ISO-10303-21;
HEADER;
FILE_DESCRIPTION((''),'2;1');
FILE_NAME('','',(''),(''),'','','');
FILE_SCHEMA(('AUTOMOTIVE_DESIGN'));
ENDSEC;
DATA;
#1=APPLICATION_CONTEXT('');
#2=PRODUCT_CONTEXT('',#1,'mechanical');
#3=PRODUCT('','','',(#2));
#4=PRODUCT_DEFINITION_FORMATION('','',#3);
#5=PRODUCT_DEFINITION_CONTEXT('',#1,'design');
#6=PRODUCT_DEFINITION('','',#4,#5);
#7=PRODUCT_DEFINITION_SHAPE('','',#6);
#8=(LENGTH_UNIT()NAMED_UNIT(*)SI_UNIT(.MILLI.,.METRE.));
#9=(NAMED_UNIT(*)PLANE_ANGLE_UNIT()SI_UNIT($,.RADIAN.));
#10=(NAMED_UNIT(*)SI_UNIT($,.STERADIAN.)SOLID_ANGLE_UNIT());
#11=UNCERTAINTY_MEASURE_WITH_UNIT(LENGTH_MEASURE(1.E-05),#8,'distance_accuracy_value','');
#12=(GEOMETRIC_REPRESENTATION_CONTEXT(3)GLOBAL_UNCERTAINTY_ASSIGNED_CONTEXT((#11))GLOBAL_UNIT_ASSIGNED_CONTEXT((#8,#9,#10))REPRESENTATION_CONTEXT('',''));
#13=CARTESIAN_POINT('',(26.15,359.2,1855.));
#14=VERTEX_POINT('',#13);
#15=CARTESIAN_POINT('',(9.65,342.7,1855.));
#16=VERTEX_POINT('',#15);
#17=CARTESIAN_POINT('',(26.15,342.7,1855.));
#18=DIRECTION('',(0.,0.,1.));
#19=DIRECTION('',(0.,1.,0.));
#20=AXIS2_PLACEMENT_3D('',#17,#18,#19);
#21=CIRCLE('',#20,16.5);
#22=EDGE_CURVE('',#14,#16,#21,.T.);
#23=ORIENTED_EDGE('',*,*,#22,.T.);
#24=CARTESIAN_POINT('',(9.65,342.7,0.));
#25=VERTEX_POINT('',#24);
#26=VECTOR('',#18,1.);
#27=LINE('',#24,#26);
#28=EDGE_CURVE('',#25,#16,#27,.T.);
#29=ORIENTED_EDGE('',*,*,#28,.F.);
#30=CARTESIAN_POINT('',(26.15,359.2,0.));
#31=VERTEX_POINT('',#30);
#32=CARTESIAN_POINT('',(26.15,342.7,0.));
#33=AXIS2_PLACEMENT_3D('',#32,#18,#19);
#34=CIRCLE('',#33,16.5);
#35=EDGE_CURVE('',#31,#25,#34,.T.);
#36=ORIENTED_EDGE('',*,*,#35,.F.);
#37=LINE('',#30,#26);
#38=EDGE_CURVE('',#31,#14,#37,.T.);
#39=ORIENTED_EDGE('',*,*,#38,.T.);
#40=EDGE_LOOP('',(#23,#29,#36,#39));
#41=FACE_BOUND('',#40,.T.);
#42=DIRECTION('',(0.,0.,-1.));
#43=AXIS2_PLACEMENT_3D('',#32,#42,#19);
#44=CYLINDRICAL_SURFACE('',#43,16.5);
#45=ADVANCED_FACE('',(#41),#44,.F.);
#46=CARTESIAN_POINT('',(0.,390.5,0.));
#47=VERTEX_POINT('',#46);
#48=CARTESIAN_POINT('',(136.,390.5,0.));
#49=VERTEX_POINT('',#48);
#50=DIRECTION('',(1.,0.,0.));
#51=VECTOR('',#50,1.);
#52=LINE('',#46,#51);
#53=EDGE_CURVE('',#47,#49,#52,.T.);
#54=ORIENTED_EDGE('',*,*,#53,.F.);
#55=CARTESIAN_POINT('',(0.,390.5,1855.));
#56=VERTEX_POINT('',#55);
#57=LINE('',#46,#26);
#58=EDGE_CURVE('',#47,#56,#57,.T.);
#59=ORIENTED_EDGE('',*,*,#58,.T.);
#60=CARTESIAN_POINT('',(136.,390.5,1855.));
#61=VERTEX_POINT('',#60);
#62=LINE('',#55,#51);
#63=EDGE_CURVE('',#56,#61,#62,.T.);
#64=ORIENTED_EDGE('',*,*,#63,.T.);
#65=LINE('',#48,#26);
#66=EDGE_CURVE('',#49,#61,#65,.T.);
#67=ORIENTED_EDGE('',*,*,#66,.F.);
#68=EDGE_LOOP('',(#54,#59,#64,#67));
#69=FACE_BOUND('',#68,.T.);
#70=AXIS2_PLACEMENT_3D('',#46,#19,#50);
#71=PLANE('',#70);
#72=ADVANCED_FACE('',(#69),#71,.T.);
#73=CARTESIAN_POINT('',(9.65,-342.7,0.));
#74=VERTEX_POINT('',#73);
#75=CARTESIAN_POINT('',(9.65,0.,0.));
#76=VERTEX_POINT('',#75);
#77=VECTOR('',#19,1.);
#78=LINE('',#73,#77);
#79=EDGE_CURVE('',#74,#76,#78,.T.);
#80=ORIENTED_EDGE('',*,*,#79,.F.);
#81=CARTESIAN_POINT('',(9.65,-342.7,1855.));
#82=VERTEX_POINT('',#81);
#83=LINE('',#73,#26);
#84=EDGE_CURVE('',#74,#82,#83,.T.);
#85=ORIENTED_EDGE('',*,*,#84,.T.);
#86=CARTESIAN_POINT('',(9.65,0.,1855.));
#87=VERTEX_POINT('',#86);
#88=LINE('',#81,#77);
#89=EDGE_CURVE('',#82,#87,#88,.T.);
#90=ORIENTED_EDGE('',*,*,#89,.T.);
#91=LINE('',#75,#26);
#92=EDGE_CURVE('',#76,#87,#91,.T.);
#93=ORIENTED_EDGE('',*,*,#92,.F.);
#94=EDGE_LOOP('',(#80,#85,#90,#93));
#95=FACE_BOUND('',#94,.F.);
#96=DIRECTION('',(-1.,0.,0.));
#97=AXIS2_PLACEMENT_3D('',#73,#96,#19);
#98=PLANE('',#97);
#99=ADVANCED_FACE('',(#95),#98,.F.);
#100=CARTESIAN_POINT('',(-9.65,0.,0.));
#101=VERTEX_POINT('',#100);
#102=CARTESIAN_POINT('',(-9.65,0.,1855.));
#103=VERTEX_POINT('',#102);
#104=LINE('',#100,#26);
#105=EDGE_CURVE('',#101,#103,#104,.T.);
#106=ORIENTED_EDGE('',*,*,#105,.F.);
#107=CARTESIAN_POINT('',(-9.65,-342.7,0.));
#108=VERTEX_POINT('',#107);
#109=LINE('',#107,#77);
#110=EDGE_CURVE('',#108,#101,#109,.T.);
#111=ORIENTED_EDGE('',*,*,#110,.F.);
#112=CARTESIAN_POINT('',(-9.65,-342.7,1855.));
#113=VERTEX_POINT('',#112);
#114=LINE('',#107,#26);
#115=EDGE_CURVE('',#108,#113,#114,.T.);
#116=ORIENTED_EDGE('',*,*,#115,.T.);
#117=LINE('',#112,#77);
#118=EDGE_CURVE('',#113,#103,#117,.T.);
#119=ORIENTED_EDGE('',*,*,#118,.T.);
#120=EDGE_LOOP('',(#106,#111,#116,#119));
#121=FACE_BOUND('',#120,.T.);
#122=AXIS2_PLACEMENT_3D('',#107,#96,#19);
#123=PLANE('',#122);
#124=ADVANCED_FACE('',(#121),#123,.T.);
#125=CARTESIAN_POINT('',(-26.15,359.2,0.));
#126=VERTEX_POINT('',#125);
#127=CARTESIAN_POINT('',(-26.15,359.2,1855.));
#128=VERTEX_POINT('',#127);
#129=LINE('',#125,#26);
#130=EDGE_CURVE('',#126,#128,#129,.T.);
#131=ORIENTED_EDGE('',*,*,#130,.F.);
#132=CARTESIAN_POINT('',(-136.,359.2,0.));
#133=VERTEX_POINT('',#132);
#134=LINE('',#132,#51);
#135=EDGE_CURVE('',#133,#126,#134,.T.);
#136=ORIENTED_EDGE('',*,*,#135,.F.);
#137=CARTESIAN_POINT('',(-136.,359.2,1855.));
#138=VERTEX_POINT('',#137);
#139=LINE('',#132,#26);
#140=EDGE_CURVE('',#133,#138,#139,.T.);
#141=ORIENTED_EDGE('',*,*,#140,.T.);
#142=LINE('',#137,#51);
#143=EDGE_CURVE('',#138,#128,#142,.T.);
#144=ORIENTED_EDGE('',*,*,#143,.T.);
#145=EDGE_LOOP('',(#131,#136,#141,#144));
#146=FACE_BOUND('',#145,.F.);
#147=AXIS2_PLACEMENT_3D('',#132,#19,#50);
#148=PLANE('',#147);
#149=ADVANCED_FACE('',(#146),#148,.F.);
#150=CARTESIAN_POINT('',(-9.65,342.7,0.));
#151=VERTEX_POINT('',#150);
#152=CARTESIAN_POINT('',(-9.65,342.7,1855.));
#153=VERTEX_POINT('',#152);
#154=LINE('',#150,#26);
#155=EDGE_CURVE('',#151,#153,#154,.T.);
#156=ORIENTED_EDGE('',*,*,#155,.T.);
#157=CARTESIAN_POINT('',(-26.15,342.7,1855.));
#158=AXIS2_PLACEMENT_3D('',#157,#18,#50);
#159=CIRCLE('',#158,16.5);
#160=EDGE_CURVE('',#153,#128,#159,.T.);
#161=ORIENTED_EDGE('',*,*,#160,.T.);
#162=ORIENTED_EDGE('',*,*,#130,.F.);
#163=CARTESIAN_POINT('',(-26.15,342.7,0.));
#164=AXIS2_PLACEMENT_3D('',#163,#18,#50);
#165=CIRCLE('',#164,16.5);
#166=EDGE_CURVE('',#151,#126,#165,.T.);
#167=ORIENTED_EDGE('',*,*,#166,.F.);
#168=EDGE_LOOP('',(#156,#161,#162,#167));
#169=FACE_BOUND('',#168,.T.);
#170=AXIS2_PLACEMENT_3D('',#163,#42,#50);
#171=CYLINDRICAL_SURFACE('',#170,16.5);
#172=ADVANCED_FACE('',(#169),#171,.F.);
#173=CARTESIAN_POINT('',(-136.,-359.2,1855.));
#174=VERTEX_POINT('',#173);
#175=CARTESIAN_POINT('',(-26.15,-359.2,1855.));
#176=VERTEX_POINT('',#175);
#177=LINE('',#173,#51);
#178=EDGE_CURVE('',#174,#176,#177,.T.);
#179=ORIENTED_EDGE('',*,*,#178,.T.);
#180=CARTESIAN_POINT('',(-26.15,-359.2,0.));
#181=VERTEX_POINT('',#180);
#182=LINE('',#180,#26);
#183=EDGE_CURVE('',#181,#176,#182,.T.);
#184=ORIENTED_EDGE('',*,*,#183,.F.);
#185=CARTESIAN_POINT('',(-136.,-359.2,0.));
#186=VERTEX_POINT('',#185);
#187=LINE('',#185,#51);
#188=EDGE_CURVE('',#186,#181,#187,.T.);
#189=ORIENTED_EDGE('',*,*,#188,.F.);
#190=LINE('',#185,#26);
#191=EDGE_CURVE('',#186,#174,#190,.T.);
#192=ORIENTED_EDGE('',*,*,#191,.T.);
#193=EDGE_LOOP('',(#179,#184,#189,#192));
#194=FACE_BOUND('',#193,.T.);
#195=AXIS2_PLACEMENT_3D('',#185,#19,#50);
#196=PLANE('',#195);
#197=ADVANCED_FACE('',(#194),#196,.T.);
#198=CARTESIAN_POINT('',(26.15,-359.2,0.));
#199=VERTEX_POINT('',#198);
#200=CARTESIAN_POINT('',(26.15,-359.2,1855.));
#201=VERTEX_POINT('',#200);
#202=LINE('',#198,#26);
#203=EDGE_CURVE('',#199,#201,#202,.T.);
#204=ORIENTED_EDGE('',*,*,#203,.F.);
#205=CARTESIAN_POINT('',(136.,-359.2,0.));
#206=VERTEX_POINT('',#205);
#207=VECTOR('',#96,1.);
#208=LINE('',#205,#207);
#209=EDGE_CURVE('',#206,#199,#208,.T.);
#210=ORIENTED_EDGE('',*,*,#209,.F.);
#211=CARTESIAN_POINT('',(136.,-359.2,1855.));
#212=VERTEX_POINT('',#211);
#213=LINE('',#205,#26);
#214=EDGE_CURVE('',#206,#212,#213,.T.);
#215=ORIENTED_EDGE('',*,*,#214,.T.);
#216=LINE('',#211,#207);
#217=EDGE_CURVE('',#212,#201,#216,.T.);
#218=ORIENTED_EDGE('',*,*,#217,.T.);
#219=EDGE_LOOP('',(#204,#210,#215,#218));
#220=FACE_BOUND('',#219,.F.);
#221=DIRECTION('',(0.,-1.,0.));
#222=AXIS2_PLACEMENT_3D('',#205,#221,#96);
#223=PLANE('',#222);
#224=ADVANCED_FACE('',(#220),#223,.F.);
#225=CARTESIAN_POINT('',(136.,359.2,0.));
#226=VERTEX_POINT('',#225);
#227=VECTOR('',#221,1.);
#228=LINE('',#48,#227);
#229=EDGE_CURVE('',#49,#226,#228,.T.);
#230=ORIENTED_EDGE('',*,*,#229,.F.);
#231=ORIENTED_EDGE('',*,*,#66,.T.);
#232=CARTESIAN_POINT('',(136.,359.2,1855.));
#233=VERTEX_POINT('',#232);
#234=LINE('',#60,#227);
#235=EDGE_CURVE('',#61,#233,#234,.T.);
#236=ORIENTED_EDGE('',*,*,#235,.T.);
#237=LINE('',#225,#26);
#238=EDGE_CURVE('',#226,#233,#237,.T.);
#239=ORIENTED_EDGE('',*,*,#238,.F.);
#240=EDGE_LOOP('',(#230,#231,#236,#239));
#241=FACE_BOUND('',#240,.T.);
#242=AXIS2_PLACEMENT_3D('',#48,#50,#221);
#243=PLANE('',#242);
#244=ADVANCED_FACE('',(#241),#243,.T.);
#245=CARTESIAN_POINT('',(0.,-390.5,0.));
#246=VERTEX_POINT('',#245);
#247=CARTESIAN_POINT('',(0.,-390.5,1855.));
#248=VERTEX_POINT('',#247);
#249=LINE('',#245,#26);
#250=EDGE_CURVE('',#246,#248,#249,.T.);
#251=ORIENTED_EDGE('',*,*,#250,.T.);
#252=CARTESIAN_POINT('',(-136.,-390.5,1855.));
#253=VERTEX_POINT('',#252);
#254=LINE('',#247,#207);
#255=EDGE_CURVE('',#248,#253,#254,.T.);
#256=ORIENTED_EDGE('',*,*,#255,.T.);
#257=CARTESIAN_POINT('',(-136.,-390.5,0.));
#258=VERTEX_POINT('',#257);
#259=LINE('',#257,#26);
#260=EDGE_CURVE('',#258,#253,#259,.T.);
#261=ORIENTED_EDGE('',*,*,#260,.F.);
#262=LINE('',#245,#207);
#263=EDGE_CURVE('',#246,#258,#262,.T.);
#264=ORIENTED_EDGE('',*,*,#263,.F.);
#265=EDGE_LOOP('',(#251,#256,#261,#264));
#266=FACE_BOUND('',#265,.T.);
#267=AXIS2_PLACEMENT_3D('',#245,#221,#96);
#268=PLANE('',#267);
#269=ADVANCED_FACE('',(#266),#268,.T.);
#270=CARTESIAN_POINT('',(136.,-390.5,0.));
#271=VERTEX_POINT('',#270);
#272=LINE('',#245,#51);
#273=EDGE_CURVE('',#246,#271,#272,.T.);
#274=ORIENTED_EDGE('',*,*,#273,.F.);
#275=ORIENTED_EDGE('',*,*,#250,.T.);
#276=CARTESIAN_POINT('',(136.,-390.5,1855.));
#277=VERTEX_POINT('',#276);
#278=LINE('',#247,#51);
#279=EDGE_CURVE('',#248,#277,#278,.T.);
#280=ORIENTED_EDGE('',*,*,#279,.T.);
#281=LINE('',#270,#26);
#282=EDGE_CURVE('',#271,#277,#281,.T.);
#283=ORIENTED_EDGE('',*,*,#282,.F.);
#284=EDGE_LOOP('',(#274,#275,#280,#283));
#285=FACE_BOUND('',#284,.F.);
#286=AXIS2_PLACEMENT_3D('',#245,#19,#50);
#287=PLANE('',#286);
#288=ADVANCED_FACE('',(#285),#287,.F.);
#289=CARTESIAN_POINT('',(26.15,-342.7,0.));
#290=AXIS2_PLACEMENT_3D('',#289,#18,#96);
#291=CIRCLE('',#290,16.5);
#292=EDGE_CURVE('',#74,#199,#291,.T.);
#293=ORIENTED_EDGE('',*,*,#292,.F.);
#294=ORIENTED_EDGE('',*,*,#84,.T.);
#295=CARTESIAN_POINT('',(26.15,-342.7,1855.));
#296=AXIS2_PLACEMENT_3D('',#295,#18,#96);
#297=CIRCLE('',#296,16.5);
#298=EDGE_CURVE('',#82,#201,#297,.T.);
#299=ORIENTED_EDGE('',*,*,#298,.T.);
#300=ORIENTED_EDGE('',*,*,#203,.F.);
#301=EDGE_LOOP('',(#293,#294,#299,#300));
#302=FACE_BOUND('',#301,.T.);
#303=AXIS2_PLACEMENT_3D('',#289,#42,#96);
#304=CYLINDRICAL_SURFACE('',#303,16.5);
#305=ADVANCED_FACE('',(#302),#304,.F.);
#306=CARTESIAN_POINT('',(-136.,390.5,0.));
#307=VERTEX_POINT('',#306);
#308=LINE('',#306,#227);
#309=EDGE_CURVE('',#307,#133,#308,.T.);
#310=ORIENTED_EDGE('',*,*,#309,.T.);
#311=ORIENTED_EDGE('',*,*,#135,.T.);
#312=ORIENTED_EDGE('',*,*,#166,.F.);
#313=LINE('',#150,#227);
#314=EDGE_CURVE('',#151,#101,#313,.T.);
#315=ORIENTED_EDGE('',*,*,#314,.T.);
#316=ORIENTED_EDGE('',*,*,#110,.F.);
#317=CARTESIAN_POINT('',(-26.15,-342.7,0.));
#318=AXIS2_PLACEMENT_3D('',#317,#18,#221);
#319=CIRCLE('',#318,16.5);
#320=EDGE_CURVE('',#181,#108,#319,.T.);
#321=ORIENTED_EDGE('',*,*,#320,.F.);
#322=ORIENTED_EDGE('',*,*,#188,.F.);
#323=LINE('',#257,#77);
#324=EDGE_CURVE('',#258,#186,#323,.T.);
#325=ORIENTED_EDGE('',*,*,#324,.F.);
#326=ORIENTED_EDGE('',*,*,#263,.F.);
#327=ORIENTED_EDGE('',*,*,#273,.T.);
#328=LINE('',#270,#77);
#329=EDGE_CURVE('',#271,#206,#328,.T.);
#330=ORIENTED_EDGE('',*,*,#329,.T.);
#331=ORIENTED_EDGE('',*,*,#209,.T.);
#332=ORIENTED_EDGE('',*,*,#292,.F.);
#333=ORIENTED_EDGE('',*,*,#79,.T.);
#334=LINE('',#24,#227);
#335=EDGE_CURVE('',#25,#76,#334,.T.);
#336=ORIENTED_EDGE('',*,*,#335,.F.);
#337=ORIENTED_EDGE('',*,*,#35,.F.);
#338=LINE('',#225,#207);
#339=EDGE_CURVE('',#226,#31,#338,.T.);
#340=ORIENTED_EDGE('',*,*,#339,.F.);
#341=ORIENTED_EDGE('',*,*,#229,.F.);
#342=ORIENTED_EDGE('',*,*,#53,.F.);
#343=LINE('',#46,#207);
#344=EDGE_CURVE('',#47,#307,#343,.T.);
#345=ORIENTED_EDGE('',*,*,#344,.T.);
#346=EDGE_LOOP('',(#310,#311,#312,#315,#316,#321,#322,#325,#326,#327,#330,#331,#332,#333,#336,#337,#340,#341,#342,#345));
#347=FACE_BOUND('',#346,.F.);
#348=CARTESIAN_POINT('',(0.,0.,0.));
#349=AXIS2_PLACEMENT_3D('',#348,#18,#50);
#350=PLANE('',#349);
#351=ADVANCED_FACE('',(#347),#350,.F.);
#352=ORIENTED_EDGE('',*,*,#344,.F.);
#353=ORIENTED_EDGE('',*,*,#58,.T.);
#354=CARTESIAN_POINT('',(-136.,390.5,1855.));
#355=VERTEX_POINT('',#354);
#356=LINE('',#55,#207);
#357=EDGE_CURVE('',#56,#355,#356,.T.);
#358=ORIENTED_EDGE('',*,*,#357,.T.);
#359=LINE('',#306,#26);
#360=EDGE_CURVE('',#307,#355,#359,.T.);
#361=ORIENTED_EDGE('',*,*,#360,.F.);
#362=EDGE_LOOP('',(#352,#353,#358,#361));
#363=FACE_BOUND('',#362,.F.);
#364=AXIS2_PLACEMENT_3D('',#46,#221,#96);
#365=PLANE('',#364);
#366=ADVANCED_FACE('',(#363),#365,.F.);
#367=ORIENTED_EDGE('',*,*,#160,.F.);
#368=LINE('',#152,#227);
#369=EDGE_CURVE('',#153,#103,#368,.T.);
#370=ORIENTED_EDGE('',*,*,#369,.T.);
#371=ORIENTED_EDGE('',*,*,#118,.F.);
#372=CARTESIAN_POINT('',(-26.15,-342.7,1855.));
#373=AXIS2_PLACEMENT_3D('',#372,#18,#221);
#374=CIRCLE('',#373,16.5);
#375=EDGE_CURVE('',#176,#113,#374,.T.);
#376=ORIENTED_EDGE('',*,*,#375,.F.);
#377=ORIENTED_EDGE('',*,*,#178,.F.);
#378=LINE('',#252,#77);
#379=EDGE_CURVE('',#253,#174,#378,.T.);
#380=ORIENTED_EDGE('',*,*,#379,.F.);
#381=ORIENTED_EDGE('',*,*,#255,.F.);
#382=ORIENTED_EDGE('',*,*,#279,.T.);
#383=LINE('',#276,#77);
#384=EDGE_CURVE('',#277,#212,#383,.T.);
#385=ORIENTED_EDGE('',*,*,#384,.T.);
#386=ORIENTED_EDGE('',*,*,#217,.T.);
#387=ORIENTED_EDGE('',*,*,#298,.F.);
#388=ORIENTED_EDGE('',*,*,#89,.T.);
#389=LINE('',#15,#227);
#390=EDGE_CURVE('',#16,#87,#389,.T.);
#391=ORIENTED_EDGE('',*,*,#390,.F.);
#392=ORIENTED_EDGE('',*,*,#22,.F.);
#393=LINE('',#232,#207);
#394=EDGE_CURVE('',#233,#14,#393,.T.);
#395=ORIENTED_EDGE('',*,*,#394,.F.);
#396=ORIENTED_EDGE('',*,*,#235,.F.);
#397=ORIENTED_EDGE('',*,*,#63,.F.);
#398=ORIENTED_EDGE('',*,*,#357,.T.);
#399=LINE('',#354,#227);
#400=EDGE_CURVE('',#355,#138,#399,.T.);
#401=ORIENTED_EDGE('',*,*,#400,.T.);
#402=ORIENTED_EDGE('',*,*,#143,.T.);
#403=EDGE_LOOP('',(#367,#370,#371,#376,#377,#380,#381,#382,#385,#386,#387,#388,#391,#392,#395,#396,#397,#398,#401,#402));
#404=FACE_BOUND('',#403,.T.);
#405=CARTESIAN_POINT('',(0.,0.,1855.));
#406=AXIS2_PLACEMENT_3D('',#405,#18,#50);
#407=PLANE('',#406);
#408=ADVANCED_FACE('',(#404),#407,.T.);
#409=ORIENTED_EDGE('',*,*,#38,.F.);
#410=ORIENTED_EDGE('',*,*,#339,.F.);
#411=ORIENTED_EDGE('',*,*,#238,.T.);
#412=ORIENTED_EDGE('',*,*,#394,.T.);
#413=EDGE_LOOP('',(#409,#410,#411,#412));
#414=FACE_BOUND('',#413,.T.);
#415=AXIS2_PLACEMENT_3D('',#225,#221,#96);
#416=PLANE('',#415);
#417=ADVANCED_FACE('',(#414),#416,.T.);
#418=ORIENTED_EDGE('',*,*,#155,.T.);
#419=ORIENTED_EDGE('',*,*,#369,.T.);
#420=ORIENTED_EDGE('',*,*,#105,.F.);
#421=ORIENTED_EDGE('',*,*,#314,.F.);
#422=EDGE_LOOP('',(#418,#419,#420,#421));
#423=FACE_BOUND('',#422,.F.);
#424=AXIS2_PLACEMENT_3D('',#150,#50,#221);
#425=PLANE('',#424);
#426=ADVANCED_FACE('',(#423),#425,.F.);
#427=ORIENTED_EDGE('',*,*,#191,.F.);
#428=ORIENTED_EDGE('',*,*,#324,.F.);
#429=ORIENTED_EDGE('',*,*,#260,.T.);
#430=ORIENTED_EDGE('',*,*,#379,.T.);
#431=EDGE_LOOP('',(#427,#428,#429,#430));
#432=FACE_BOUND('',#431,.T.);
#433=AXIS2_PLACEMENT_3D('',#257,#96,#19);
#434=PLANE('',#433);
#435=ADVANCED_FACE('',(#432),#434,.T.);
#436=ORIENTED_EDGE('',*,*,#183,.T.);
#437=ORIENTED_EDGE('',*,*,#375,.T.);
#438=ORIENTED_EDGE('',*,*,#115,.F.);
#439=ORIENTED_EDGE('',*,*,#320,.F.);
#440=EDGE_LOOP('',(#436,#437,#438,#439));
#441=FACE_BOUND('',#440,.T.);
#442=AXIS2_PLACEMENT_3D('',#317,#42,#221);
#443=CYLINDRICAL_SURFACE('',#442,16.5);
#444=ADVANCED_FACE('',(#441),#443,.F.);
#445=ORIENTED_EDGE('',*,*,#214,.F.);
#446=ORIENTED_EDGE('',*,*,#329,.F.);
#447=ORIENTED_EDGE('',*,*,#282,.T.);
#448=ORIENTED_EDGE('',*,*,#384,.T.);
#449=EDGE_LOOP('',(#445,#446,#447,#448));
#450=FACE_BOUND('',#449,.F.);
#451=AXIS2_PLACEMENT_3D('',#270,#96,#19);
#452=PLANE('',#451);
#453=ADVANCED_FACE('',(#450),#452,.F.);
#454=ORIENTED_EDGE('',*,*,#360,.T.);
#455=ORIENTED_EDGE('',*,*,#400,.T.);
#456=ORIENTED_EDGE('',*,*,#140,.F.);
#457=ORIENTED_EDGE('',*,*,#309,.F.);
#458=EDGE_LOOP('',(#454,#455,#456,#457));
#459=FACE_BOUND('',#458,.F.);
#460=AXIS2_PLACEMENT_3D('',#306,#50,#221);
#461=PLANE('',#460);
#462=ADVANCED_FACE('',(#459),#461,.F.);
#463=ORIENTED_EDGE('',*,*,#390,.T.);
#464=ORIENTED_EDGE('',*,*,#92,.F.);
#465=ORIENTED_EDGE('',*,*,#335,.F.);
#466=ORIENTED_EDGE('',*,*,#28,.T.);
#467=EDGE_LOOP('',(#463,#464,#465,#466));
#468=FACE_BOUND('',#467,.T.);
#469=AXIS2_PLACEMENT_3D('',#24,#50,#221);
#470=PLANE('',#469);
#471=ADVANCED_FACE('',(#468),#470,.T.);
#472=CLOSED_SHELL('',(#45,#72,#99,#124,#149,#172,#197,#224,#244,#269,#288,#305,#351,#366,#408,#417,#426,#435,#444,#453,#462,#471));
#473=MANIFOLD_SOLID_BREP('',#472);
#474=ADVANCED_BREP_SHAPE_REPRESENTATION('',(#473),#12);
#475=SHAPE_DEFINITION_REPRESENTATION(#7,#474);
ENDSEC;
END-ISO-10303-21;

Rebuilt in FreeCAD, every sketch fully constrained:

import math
import FreeCAD as App
import Part
import Sketcher
from FreeCAD import Vector
Q = App.Units.Quantity

doc = App.newDocument("Part")
body = doc.addObject("PartDesign::Body", "Body")

# Sketch on XY plane
sketch1 = body.newObject("Sketcher::SketchObject", "Sketch")
sketch1.AttachmentSupport = (doc.getObject("XY_Plane"), [""])
sketch1.MapMode = "FlatFace"
sketch1.addGeometry([
    Part.LineSegment(Vector(-136, -359, 0), Vector(-136, -390, 0)),  # 0
    Part.LineSegment(Vector(-136, -390, 0), Vector(136, -390, 0)),  # 1
    Part.LineSegment(Vector(136, -390, 0), Vector(136, -359, 0)),  # 2
    Part.LineSegment(Vector(136, -359, 0), Vector(26, -359, 0)),  # 3
    Part.ArcOfCircle(Part.Circle(Vector(26, -343, 0), Vector(0, 0, 1), 16), math.radians(180), math.radians(270)),  # 4
    Part.LineSegment(Vector(10, -343, 0), Vector(10, 343, 0)),  # 5
    Part.ArcOfCircle(Part.Circle(Vector(26, 343, 0), Vector(0, 0, 1), 16), math.radians(90), math.radians(180)),  # 6
    Part.LineSegment(Vector(26, 359, 0), Vector(136, 359, 0)),  # 7
    Part.LineSegment(Vector(136, 359, 0), Vector(136, 390, 0)),  # 8
    Part.LineSegment(Vector(136, 390, 0), Vector(-136, 390, 0)),  # 9
    Part.LineSegment(Vector(-136, 390, 0), Vector(-136, 359, 0)),  # 10
    Part.LineSegment(Vector(-136, 359, 0), Vector(-26, 359, 0)),  # 11
    Part.ArcOfCircle(Part.Circle(Vector(-26, 343, 0), Vector(0, 0, 1), 16), math.radians(0), math.radians(90)),  # 12
    Part.LineSegment(Vector(-10, 343, 0), Vector(-10, -343, 0)),  # 13
    Part.ArcOfCircle(Part.Circle(Vector(-26, -343, 0), Vector(0, 0, 1), 16), math.radians(-90), math.radians(0)),  # 14
    Part.LineSegment(Vector(-26, -359, 0), Vector(-136, -359, 0)),  # 15
], False)
sketch1.addConstraint([
    Sketcher.Constraint("Coincident", 0, 2, 1, 1),
    Sketcher.Constraint("Coincident", 1, 2, 2, 1),
    Sketcher.Constraint("Coincident", 2, 2, 3, 1),
    Sketcher.Constraint("Tangent", 3, 2, 4, 2),
    Sketcher.Constraint("Tangent", 4, 1, 5, 1),
    Sketcher.Constraint("Tangent", 5, 2, 6, 2),
    Sketcher.Constraint("Tangent", 6, 1, 7, 1),
    Sketcher.Constraint("Coincident", 7, 2, 8, 1),
    Sketcher.Constraint("Coincident", 8, 2, 9, 1),
    Sketcher.Constraint("Coincident", 9, 2, 10, 1),
    Sketcher.Constraint("Coincident", 10, 2, 11, 1),
    Sketcher.Constraint("Tangent", 11, 2, 12, 2),
    Sketcher.Constraint("Tangent", 12, 1, 13, 1),
    Sketcher.Constraint("Tangent", 13, 2, 14, 2),
    Sketcher.Constraint("Tangent", 14, 1, 15, 1),
    Sketcher.Constraint("Coincident", 15, 2, 0, 1),
    Sketcher.Constraint("Vertical", 0),
    Sketcher.Constraint("Horizontal", 1),
    Sketcher.Constraint("Vertical", 2),
    Sketcher.Constraint("Horizontal", 3),
    Sketcher.Constraint("Vertical", 5),
    Sketcher.Constraint("Horizontal", 7),
    Sketcher.Constraint("Vertical", 8),
    Sketcher.Constraint("Horizontal", 9),
    Sketcher.Constraint("Vertical", 10),
    Sketcher.Constraint("Horizontal", 11),
    Sketcher.Constraint("Vertical", 13),
    Sketcher.Constraint("Horizontal", 15),
    Sketcher.Constraint("Equal", 4, 6),
    Sketcher.Constraint("Equal", 6, 12),
    Sketcher.Constraint("Equal", 12, 14),
    Sketcher.Constraint("Symmetric", 4, 3, 12, 3, -1, 1),
    Sketcher.Constraint("Symmetric", 0, 2, 8, 2, -1, 1),
    Sketcher.Constraint("Symmetric", 7, 2, 10, 2, -2),
    Sketcher.Constraint("Symmetric", 2, 2, 15, 2, -2),
    Sketcher.Constraint("Radius", 4, Q("16.5 mm")),
    Sketcher.Constraint("DistanceY", 0, 2, 0, 1, Q("31.3 mm")),
    Sketcher.Constraint("DistanceX", 0, 2, -1, 1, Q("136 mm")),
    Sketcher.Constraint("DistanceY", 0, 2, -1, 1, Q("390.5 mm")),
    Sketcher.Constraint("DistanceX", -1, 1, 4, 1, Q("9.65 mm")),
])
pad1 = body.newObject("PartDesign::Pad", "Pad")
pad1.Profile = sketch1
pad1.Length = 1855

doc.recompute()
